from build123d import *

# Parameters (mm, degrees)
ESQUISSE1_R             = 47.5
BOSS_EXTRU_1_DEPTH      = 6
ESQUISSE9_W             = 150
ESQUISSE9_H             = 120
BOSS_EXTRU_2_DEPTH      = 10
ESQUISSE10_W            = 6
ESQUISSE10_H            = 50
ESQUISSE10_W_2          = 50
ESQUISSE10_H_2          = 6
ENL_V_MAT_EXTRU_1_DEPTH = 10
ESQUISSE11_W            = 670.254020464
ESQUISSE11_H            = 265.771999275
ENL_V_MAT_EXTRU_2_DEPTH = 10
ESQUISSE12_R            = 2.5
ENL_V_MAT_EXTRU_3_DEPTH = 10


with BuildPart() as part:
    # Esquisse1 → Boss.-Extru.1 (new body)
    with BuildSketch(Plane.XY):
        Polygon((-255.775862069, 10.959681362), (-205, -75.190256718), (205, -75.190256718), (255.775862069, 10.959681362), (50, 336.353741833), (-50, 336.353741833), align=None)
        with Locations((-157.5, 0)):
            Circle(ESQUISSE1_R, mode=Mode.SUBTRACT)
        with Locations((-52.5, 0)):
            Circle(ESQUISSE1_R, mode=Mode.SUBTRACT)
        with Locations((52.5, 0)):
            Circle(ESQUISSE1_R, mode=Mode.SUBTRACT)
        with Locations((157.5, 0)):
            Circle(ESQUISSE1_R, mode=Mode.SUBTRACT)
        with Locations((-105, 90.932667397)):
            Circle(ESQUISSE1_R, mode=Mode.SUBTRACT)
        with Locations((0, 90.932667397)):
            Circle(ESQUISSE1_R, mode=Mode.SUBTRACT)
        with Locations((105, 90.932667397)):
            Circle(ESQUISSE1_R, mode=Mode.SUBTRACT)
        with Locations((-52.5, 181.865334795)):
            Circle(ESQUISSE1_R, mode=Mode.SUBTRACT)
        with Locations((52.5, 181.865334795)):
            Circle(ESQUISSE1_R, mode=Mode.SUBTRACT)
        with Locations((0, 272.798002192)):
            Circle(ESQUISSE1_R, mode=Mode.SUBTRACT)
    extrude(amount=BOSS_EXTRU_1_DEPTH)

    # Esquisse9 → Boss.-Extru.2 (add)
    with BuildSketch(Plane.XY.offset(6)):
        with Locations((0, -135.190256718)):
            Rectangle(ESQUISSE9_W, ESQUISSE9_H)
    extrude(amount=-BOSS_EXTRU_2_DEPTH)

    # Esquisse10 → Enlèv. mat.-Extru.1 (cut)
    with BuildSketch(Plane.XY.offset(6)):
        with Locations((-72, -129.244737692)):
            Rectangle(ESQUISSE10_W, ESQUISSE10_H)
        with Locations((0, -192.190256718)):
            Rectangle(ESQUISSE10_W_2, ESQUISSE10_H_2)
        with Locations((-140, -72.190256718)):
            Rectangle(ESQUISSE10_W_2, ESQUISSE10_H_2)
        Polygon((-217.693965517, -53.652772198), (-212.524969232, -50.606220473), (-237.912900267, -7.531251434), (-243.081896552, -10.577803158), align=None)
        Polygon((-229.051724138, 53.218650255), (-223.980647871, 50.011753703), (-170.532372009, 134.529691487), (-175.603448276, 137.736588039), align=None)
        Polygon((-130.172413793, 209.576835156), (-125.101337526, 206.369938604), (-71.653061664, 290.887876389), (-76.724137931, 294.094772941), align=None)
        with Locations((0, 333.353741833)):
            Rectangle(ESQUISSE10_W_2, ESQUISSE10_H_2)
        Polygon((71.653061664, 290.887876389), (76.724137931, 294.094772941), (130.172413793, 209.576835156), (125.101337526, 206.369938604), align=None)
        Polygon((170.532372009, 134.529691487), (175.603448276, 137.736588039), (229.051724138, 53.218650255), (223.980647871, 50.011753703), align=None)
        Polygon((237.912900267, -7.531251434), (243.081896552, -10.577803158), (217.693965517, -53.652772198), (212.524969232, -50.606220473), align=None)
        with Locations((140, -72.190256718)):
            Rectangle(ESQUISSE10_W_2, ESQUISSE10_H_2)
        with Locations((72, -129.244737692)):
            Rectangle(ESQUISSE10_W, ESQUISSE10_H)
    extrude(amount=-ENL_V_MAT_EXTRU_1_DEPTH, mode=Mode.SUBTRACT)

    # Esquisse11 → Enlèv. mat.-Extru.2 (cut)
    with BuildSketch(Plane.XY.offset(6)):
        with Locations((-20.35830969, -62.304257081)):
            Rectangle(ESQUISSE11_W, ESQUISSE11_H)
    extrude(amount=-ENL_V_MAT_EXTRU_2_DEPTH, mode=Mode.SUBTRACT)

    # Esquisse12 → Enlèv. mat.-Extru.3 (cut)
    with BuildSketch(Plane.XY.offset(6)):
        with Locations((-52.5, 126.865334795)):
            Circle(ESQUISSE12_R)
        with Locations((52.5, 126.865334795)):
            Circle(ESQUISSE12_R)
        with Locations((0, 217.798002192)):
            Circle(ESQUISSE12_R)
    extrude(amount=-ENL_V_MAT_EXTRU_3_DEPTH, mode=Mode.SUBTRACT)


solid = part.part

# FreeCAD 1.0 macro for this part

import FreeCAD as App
import Part
import Sketcher

V = App.Vector

doc = App.newDocument("Part")
body = doc.addObject("PartDesign::Body", "Body")

sketch1 = doc.addObject("Sketcher::SketchObject", "Sketch")
body.addObject(sketch1)
sketch1.AttachmentSupport = (doc.XY_Plane, [""])
sketch1.MapMode = "FlatFace"
sketch1.addGeometry(Part.LineSegment(V(-256, 11, 0), V(-205, -75, 0)), False)
sketch1.addGeometry(Part.LineSegment(V(-205, -75, 0), V(205, -75, 0)), False)
sketch1.addGeometry(Part.LineSegment(V(205, -75, 0), V(256, 11, 0)), False)
sketch1.addGeometry(Part.LineSegment(V(256, 11, 0), V(50, 336, 0)), False)
sketch1.addGeometry(Part.LineSegment(V(50, 336, 0), V(-50, 336, 0)), False)
sketch1.addGeometry(Part.LineSegment(V(-50, 336, 0), V(-256, 11, 0)), False)
sketch1.addGeometry(Part.Circle(V(-158, 0, 0), V(0, 0, 1), 48), False)
sketch1.addGeometry(Part.Circle(V(-52, 0, 0), V(0, 0, 1), 48), False)
sketch1.addGeometry(Part.Circle(V(-105, 91, 0), V(0, 0, 1), 48), False)
sketch1.addGeometry(Part.Circle(V(52, 0, 0), V(0, 0, 1), 48), False)
sketch1.addGeometry(Part.Circle(V(158, 0, 0), V(0, 0, 1), 48), False)
sketch1.addGeometry(Part.Circle(V(0, 91, 0), V(0, 0, 1), 48), False)
sketch1.addGeometry(Part.Circle(V(105, 91, 0), V(0, 0, 1), 48), False)
sketch1.addGeometry(Part.Circle(V(-52, 182, 0), V(0, 0, 1), 48), False)
sketch1.addGeometry(Part.Circle(V(52, 182, 0), V(0, 0, 1), 48), False)
sketch1.addGeometry(Part.Circle(V(0, 273, 0), V(0, 0, 1), 48), False)
sketch1.addConstraint(Sketcher.Constraint("Coincident", 0, 2, 1, 1))
sketch1.addConstraint(Sketcher.Constraint("Coincident", 1, 2, 2, 1))
sketch1.addConstraint(Sketcher.Constraint("Coincident", 2, 2, 3, 1))
sketch1.addConstraint(Sketcher.Constraint("Coincident", 3, 2, 4, 1))
sketch1.addConstraint(Sketcher.Constraint("Coincident", 4, 2, 5, 1))
sketch1.addConstraint(Sketcher.Constraint("Coincident", 5, 2, 0, 1))
sketch1.addConstraint(Sketcher.Constraint("Horizontal", 1))
sketch1.addConstraint(Sketcher.Constraint("Horizontal", 4))
sketch1.addConstraint(Sketcher.Constraint("Equal", 6, 7))
sketch1.addConstraint(Sketcher.Constraint("Equal", 7, 8))
sketch1.addConstraint(Sketcher.Constraint("Equal", 8, 9))
sketch1.addConstraint(Sketcher.Constraint("Equal", 9, 10))
sketch1.addConstraint(Sketcher.Constraint("Equal", 10, 11))
sketch1.addConstraint(Sketcher.Constraint("Equal", 11, 12))
sketch1.addConstraint(Sketcher.Constraint("Equal", 12, 13))
sketch1.addConstraint(Sketcher.Constraint("Equal", 13, 14))
sketch1.addConstraint(Sketcher.Constraint("Equal", 14, 15))
sketch1.addConstraint(Sketcher.Constraint("Symmetric", 7, 3, 9, 3, -1, 1))
sketch1.addConstraint(Sketcher.Constraint("Symmetric", 6, 3, 10, 3, -1, 1))
sketch1.addConstraint(Sketcher.Constraint("Symmetric", 8, 3, 12, 3, -2))
sketch1.addConstraint(Sketcher.Constraint("Symmetric", 13, 3, 14, 3, -2))
sketch1.addConstraint(Sketcher.Constraint("Symmetric", 2, 2, 5, 2, -2))
sketch1.addConstraint(Sketcher.Constraint("PointOnObject", 6, 3, -1))
sketch1.addConstraint(Sketcher.Constraint("PointOnObject", 7, 3, -1))
sketch1.addConstraint(Sketcher.Constraint("PointOnObject", 11, 3, -2))
sketch1.addConstraint(Sketcher.Constraint("PointOnObject", 15, 3, -2))
sketch1.addConstraint(Sketcher.Constraint("Horizontal", 8, 3, 11, 3))
sketch1.addConstraint(Sketcher.Constraint("Vertical", 7, 3, 13, 3))
sketch1.addConstraint(Sketcher.Constraint("Equal", 0, 2))
sketch1.addConstraint(Sketcher.Constraint("Equal", 3, 5))
sketch1.addConstraint(Sketcher.Constraint("Diameter", 6, 95.0))
sketch1.addConstraint(Sketcher.Constraint("DistanceX", 1, 1, 1, 2, 410.0))
sketch1.addConstraint(Sketcher.Constraint("DistanceX", 4, 2, 4, 1, 100.0))
sketch1.addConstraint(Sketcher.Constraint("Distance", 0, 100.0))
sketch1.addConstraint(Sketcher.Constraint("Distance", 3, 385.0))
sketch1.addConstraint(Sketcher.Constraint("DistanceX", 8, 3, -1, 1, 105.0))
sketch1.addConstraint(Sketcher.Constraint("DistanceX", 6, 3, 7, 3, 105.0))
sketch1.addConstraint(Sketcher.Constraint("DistanceX", 7, 3, 9, 3, 105.0))
sketch1.addConstraint(Sketcher.Constraint("DistanceY", -1, 1, 2, 2, 10.959681))
sketch1.addConstraint(Sketcher.Constraint("DistanceY", -1, 1, 3, 2, 336.353742))
sketch1.addConstraint(Sketcher.Constraint("DistanceY", 15, 3, 3, 2, 63.55574))
sketch1.addConstraint(Sketcher.Constraint("DistanceY", -1, 1, 8, 3, 90.932667))
sketch1.addConstraint(Sketcher.Constraint("DistanceY", -1, 1, 13, 3, 181.865335))
pad1 = doc.addObject("PartDesign::Pad", "Pad")
body.addObject(pad1)
pad1.Profile = sketch1
pad1.Length = 6

sketch2 = doc.addObject("Sketcher::SketchObject", "Sketch001")
body.addObject(sketch2)
sketch2.AttachmentSupport = (doc.XY_Plane, [""])
sketch2.MapMode = "FlatFace"
sketch2.AttachmentOffset = App.Placement(V(0, 0, 6), App.Rotation())
sketch2.addGeometry(Part.LineSegment(V(-75, -75, 0), V(-75, -195, 0)), False)
sketch2.addGeometry(Part.LineSegment(V(-75, -195, 0), V(75, -195, 0)), False)
sketch2.addGeometry(Part.LineSegment(V(75, -195, 0), V(75, -75, 0)), False)
sketch2.addGeometry(Part.LineSegment(V(75, -75, 0), V(-75, -75, 0)), False)
sketch2.addConstraint(Sketcher.Constraint("Coincident", 0, 2, 1, 1))
sketch2.addConstraint(Sketcher.Constraint("Coincident", 1, 2, 2, 1))
sketch2.addConstraint(Sketcher.Constraint("Coincident", 2, 2, 3, 1))
sketch2.addConstraint(Sketcher.Constraint("Coincident", 3, 2, 0, 1))
sketch2.addConstraint(Sketcher.Constraint("Vertical", 0))
sketch2.addConstraint(Sketcher.Constraint("Horizontal", 1))
sketch2.addConstraint(Sketcher.Constraint("Vertical", 2))
sketch2.addConstraint(Sketcher.Constraint("Horizontal", 3))
sketch2.addConstraint(Sketcher.Constraint("DistanceX", 1, 1, 1, 2, 150.0))
sketch2.addConstraint(Sketcher.Constraint("DistanceY", 0, 2, 0, 1, 120.0))
sketch2.addConstraint(Sketcher.Constraint("DistanceX", 0, 2, -1, 1, 75.0))
sketch2.addConstraint(Sketcher.Constraint("DistanceY", 0, 2, -1, 1, 195.190257))
pad2 = doc.addObject("PartDesign::Pad", "Pad001")
body.addObject(pad2)
pad2.Profile = sketch2
pad2.Length = 10
pad2.Reversed = True

sketch3 = doc.addObject("Sketcher::SketchObject", "Sketch002")
body.addObject(sketch3)
sketch3.AttachmentSupport = (doc.XY_Plane, [""])
sketch3.MapMode = "FlatFace"
sketch3.AttachmentOffset = App.Placement(V(0, 0, 6), App.Rotation())
sketch3.addGeometry(Part.LineSegment(V(-75, -104, 0), V(-75, -154, 0)), False)
sketch3.addGeometry(Part.LineSegment(V(-75, -154, 0), V(-69, -154, 0)), False)
sketch3.addGeometry(Part.LineSegment(V(-69, -154, 0), V(-69, -104, 0)), False)
sketch3.addGeometry(Part.LineSegment(V(-69, -104, 0), V(-75, -104, 0)), False)
sketch3.addGeometry(Part.LineSegment(V(-25, -189, 0), V(-25, -195, 0)), False)
sketch3.addGeometry(Part.LineSegment(V(-25, -195, 0), V(25, -195, 0)), False)
sketch3.addGeometry(Part.LineSegment(V(25, -195, 0), V(25, -189, 0)), False)
sketch3.addGeometry(Part.LineSegment(V(25, -189, 0), V(-25, -189, 0)), False)
sketch3.addGeometry(Part.LineSegment(V(-165, -69, 0), V(-165, -75, 0)), False)
sketch3.addGeometry(Part.LineSegment(V(-165, -75, 0), V(-115, -75, 0)), False)
sketch3.addGeometry(Part.LineSegment(V(-115, -75, 0), V(-115, -69, 0)), False)
sketch3.addGeometry(Part.LineSegment(V(-115, -69, 0), V(-165, -69, 0)), False)
sketch3.addGeometry(Part.LineSegment(V(-218, -54, 0), V(-213, -51, 0)), False)
sketch3.addGeometry(Part.LineSegment(V(-213, -51, 0), V(-238, -8, 0)), False)
sketch3.addGeometry(Part.LineSegment(V(-238, -8, 0), V(-243, -11, 0)), False)
sketch3.addGeometry(Part.LineSegment(V(-243, -11, 0), V(-218, -54, 0)), False)
sketch3.addGeometry(Part.LineSegment(V(-229, 53, 0), V(-224, 50, 0)), False)
sketch3.addGeometry(Part.LineSegment(V(-224, 50, 0), V(-171, 135, 0)), False)
sketch3.addGeometry(Part.LineSegment(V(-171, 135, 0), V(-176, 138, 0)), False)
sketch3.addGeometry(Part.LineSegment(V(-176, 138, 0), V(-229, 53, 0)), False)
sketch3.addGeometry(Part.LineSegment(V(-130, 210, 0), V(-125, 206, 0)), False)
sketch3.addGeometry(Part.LineSegment(V(-125, 206, 0), V(-72, 291, 0)), False)
sketch3.addGeometry(Part.LineSegment(V(-72, 291, 0), V(-77, 294, 0)), False)
sketch3.addGeometry(Part.LineSegment(V(-77, 294, 0), V(-130, 210, 0)), False)
sketch3.addGeometry(Part.LineSegment(V(-25, 336, 0), V(-25, 330, 0)), False)
sketch3.addGeometry(Part.LineSegment(V(-25, 330, 0), V(25, 330, 0)), False)
sketch3.addGeometry(Part.LineSegment(V(25, 330, 0), V(25, 336, 0)), False)
sketch3.addGeometry(Part.LineSegment(V(25, 336, 0), V(-25, 336, 0)), False)
sketch3.addGeometry(Part.LineSegment(V(77, 294, 0), V(72, 291, 0)), False)
sketch3.addGeometry(Part.LineSegment(V(72, 291, 0), V(125, 206, 0)), False)
sketch3.addGeometry(Part.LineSegment(V(125, 206, 0), V(130, 210, 0)), False)
sketch3.addGeometry(Part.LineSegment(V(130, 210, 0), V(77, 294, 0)), False)
sketch3.addGeometry(Part.LineSegment(V(176, 138, 0), V(171, 135, 0)), False)
sketch3.addGeometry(Part.LineSegment(V(171, 135, 0), V(224, 50, 0)), False)
sketch3.addGeometry(Part.LineSegment(V(224, 50, 0), V(229, 53, 0)), False)
sketch3.addGeometry(Part.LineSegment(V(229, 53, 0), V(176, 138, 0)), False)
sketch3.addGeometry(Part.LineSegment(V(243, -11, 0), V(238, -8, 0)), False)
sketch3.addGeometry(Part.LineSegment(V(238, -8, 0), V(213, -51, 0)), False)
sketch3.addGeometry(Part.LineSegment(V(213, -51, 0), V(218, -54, 0)), False)
sketch3.addGeometry(Part.LineSegment(V(218, -54, 0), V(243, -11, 0)), False)
sketch3.addGeometry(Part.LineSegment(V(115, -69, 0), V(115, -75, 0)), False)
sketch3.addGeometry(Part.LineSegment(V(115, -75, 0), V(165, -75, 0)), False)
sketch3.addGeometry(Part.LineSegment(V(165, -75, 0), V(165, -69, 0)), False)
sketch3.addGeometry(Part.LineSegment(V(165, -69, 0), V(115, -69, 0)), False)
sketch3.addGeometry(Part.LineSegment(V(69, -104, 0), V(69, -154, 0)), False)
sketch3.addGeometry(Part.LineSegment(V(69, -154, 0), V(75, -154, 0)), False)
sketch3.addGeometry(Part.LineSegment(V(75, -154, 0), V(75, -104, 0)), False)
sketch3.addGeometry(Part.LineSegment(V(75, -104, 0), V(69, -104, 0)), False)
sketch3.addConstraint(Sketcher.Constraint("Coincident", 0, 2, 1, 1))
sketch3.addConstraint(Sketcher.Constraint("Coincident", 1, 2, 2, 1))
sketch3.addConstraint(Sketcher.Constraint("Coincident", 2, 2, 3, 1))
sketch3.addConstraint(Sketcher.Constraint("Coincident", 3, 2, 0, 1))
sketch3.addConstraint(Sketcher.Constraint("Coincident", 4, 2, 5, 1))
sketch3.addConstraint(Sketcher.Constraint("Coincident", 5, 2, 6, 1))
sketch3.addConstraint(Sketcher.Constraint("Coincident", 6, 2, 7, 1))
sketch3.addConstraint(Sketcher.Constraint("Coincident", 7, 2, 4, 1))
sketch3.addConstraint(Sketcher.Constraint("Coincident", 8, 2, 9, 1))
sketch3.addConstraint(Sketcher.Constraint("Coincident", 9, 2, 10, 1))
sketch3.addConstraint(Sketcher.Constraint("Coincident", 10, 2, 11, 1))
sketch3.addConstraint(Sketcher.Constraint("Coincident", 11, 2, 8, 1))
sketch3.addConstraint(Sketcher.Constraint("Coincident", 12, 2, 13, 1))
sketch3.addConstraint(Sketcher.Constraint("Coincident", 13, 2, 14, 1))
sketch3.addConstraint(Sketcher.Constraint("Coincident", 14, 2, 15, 1))
sketch3.addConstraint(Sketcher.Constraint("Coincident", 15, 2, 12, 1))
sketch3.addConstraint(Sketcher.Constraint("Coincident", 16, 2, 17, 1))
sketch3.addConstraint(Sketcher.Constraint("Coincident", 17, 2, 18, 1))
sketch3.addConstraint(Sketcher.Constraint("Coincident", 18, 2, 19, 1))
sketch3.addConstraint(Sketcher.Constraint("Coincident", 19, 2, 16, 1))
sketch3.addConstraint(Sketcher.Constraint("Coincident", 20, 2, 21, 1))
sketch3.addConstraint(Sketcher.Constraint("Coincident", 21, 2, 22, 1))
sketch3.addConstraint(Sketcher.Constraint("Coincident", 22, 2, 23, 1))
sketch3.addConstraint(Sketcher.Constraint("Coincident", 23, 2, 20, 1))
sketch3.addConstraint(Sketcher.Constraint("Coincident", 24, 2, 25, 1))
sketch3.addConstraint(Sketcher.Constraint("Coincident", 25, 2, 26, 1))
sketch3.addConstraint(Sketcher.Constraint("Coincident", 26, 2, 27, 1))
sketch3.addConstraint(Sketcher.Constraint("Coincident", 27, 2, 24, 1))
sketch3.addConstraint(Sketcher.Constraint("Coincident", 28, 2, 29, 1))
sketch3.addConstraint(Sketcher.Constraint("Coincident", 29, 2, 30, 1))
sketch3.addConstraint(Sketcher.Constraint("Coincident", 30, 2, 31, 1))
sketch3.addConstraint(Sketcher.Constraint("Coincident", 31, 2, 28, 1))
sketch3.addConstraint(Sketcher.Constraint("Coincident", 32, 2, 33, 1))
sketch3.addConstraint(Sketcher.Constraint("Coincident", 33, 2, 34, 1))
sketch3.addConstraint(Sketcher.Constraint("Coincident", 34, 2, 35, 1))
sketch3.addConstraint(Sketcher.Constraint("Coincident", 35, 2, 32, 1))
sketch3.addConstraint(Sketcher.Constraint("Coincident", 36, 2, 37, 1))
sketch3.addConstraint(Sketcher.Constraint("Coincident", 37, 2, 38, 1))
sketch3.addConstraint(Sketcher.Constraint("Coincident", 38, 2, 39, 1))
sketch3.addConstraint(Sketcher.Constraint("Coincident", 39, 2, 36, 1))
sketch3.addConstraint(Sketcher.Constraint("Coincident", 40, 2, 41, 1))
sketch3.addConstraint(Sketcher.Constraint("Coincident", 41, 2, 42, 1))
sketch3.addConstraint(Sketcher.Constraint("Coincident", 42, 2, 43, 1))
sketch3.addConstraint(Sketcher.Constraint("Coincident", 43, 2, 40, 1))
sketch3.addConstraint(Sketcher.Constraint("Coincident", 44, 2, 45, 1))
sketch3.addConstraint(Sketcher.Constraint("Coincident", 45, 2, 46, 1))
sketch3.addConstraint(Sketcher.Constraint("Coincident", 46, 2, 47, 1))
sketch3.addConstraint(Sketcher.Constraint("Coincident", 47, 2, 44, 1))
sketch3.addConstraint(Sketcher.Constraint("Vertical", 0))
sketch3.addConstraint(Sketcher.Constraint("Horizontal", 1))
sketch3.addConstraint(Sketcher.Constraint("Vertical", 2))
sketch3.addConstraint(Sketcher.Constraint("Horizontal", 3))
sketch3.addConstraint(Sketcher.Constraint("Vertical", 4))
sketch3.addConstraint(Sketcher.Constraint("Horizontal", 5))
sketch3.addConstraint(Sketcher.Constraint("Vertical", 6))
sketch3.addConstraint(Sketcher.Constraint("Horizontal", 7))
sketch3.addConstraint(Sketcher.Constraint("Vertical", 8))
sketch3.addConstraint(Sketcher.Constraint("Horizontal", 9))
sketch3.addConstraint(Sketcher.Constraint("Vertical", 10))
sketch3.addConstraint(Sketcher.Constraint("Horizontal", 11))
sketch3.addConstraint(Sketcher.Constraint("Vertical", 24))
sketch3.addConstraint(Sketcher.Constraint("Horizontal", 25))
sketch3.addConstraint(Sketcher.Constraint("Vertical", 26))
sketch3.addConstraint(Sketcher.Constraint("Horizontal", 27))
sketch3.addConstraint(Sketcher.Constraint("Vertical", 40))
sketch3.addConstraint(Sketcher.Constraint("Horizontal", 41))
sketch3.addConstraint(Sketcher.Constraint("Vertical", 42))
sketch3.addConstraint(Sketcher.Constraint("Horizontal", 43))
sketch3.addConstraint(Sketcher.Constraint("Vertical", 44))
sketch3.addConstraint(Sketcher.Constraint("Horizontal", 45))
sketch3.addConstraint(Sketcher.Constraint("Vertical", 46))
sketch3.addConstraint(Sketcher.Constraint("Horizontal", 47))
sketch3.addConstraint(Sketcher.Constraint("Symmetric", 21, 2, 28, 2, -2))
sketch3.addConstraint(Sketcher.Constraint("Symmetric", 20, 2, 29, 2, -2))
sketch3.addConstraint(Sketcher.Constraint("Symmetric", 23, 2, 30, 2, -2))
sketch3.addConstraint(Sketcher.Constraint("Symmetric", 22, 2, 31, 2, -2))
sketch3.addConstraint(Sketcher.Constraint("Symmetric", 17, 2, 32, 2, -2))
sketch3.addConstraint(Sketcher.Constraint("Symmetric", 16, 2, 33, 2, -2))
sketch3.addConstraint(Sketcher.Constraint("Symmetric", 19, 2, 34, 2, -2))
sketch3.addConstraint(Sketcher.Constraint("Symmetric", 18, 2, 35, 2, -2))
sketch3.addConstraint(Sketcher.Constraint("Symmetric", 13, 2, 36, 2, -2))
sketch3.addConstraint(Sketcher.Constraint("Symmetric", 12, 2, 37, 2, -2))
sketch3.addConstraint(Sketcher.Constraint("Symmetric", 15, 2, 38, 2, -2))
sketch3.addConstraint(Sketcher.Constraint("Symmetric", 14, 2, 39, 2, -2))
sketch3.addConstraint(Sketcher.Constraint("Symmetric", 9, 2, 40, 2, -2))
sketch3.addConstraint(Sketcher.Constraint("Symmetric", 11, 2, 42, 2, -2))
sketch3.addConstraint(Sketcher.Constraint("Symmetric", 1, 2, 44, 2, -2))
sketch3.addConstraint(Sketcher.Constraint("Symmetric", 3, 2, 46, 2, -2))
sketch3.addConstraint(Sketcher.Constraint("Perpendicular", 12, 13))
sketch3.addConstraint(Sketcher.Constraint("Perpendicular", 13, 14))
sketch3.addConstraint(Sketcher.Constraint("Perpendicular", 14, 15))
sketch3.addConstraint(Sketcher.Constraint("Perpendicular", 16, 17))
sketch3.addConstraint(Sketcher.Constraint("Perpendicular", 17, 18))
sketch3.addConstraint(Sketcher.Constraint("Perpendicular", 18, 19))
sketch3.addConstraint(Sketcher.Constraint("Perpendicular", 19, 20))
sketch3.addConstraint(Sketcher.Constraint("Perpendicular", 20, 21))
sketch3.addConstraint(Sketcher.Constraint("Perpendicular", 21, 22))
sketch3.addConstraint(Sketcher.Constraint("Perpendicular", 22, 23))
sketch3.addConstraint(Sketcher.Constraint("Vertical", 7, 2, 24, 2))
sketch3.addConstraint(Sketcher.Constraint("Vertical", 6, 2, 25, 2))
sketch3.addConstraint(Sketcher.Constraint("Equal", 7, 9))
sketch3.addConstraint(Sketcher.Constraint("Equal", 43, 0))
sketch3.addConstraint(Sketcher.Constraint("Equal", 47, 4))
sketch3.addConstraint(Sketcher.Constraint("Equal", 6, 8))
sketch3.addConstraint(Sketcher.Constraint("Equal", 10, 24))
sketch3.addConstraint(Sketcher.Constraint("Equal", 14, 16))
sketch3.addConstraint(Sketcher.Constraint("Equal", 18, 20))
sketch3.addConstraint(Sketcher.Constraint("Equal", 19, 21))
sketch3.addConstraint(Sketcher.Constraint("DistanceX", 1, 1, 1, 2, 6.0))
sketch3.addConstraint(Sketcher.Constraint("DistanceX", 5, 1, 5, 2, 50.0))
sketch3.addConstraint(Sketcher.Constraint("Distance", 12, 6.0))
sketch3.addConstraint(Sketcher.Constraint("Distance", 13, 50.0))
sketch3.addConstraint(Sketcher.Constraint("Distance", 17, 100.0))
sketch3.addConstraint(Sketcher.Constraint("DistanceX", 0, 2, -1, 1, 75.0))
sketch3.addConstraint(Sketcher.Constraint("DistanceX", 4, 2, -1, 1, 25.0))
sketch3.addConstraint(Sketcher.Constraint("DistanceX", 8, 2, -1, 1, 165.0))
sketch3.addConstraint(Sketcher.Constraint("DistanceY", 7, 2, 8, 2, 114.0))
sketch3.addConstraint(Sketcher.Constraint("DistanceX", 13, 2, -1, 1, 237.9129))
sketch3.addConstraint(Sketcher.Constraint("DistanceX", 16, 2, 18, 2, 48.3772))
sketch3.addConstraint(Sketcher.Constraint("DistanceY", 13, 2, 19, 2, 60.749902))
sketch3.addConstraint(Sketcher.Constraint("DistanceX", 12, 2, -1, 1, 212.524969))
sketch3.addConstraint(Sketcher.Constraint("DistanceY", 12, 2, -1, 1, 50.60622))
sketch3.addConstraint(Sketcher.Constraint("DistanceX", 18, 2, -1, 1, 175.603448))
sketch3.addConstraint(Sketcher.Constraint("DistanceY", -1, 1, 20, 2, 206.369939))
sketch3.addConstraint(Sketcher.Constraint("DistanceX", 21, 2, -1, 1, 71.653062))
sketch3.addConstraint(Sketcher.Constraint("DistanceY", -1, 1, 24, 2, 330.353742))
sketch3.addConstraint(Sketcher.Constraint("DistanceY", 4, 2, 1, 2, 40.945519))
sketch3.addConstraint(Sketcher.Constraint("DistanceY", 11, 2, 16, 2, 119.20201))
pocket1 = doc.addObject("PartDesign::Pocket", "Pocket")
body.addObject(pocket1)
pocket1.Profile = sketch3
pocket1.Length = 10

sketch4 = doc.addObject("Sketcher::SketchObject", "Sketch003")
body.addObject(sketch4)
sketch4.AttachmentSupport = (doc.XY_Plane, [""])
sketch4.MapMode = "FlatFace"
sketch4.AttachmentOffset = App.Placement(V(0, 0, 6), App.Rotation())
sketch4.addGeometry(Part.LineSegment(V(-355, 71, 0), V(-355, -195, 0)), False)
sketch4.addGeometry(Part.LineSegment(V(-355, -195, 0), V(315, -195, 0)), False)
sketch4.addGeometry(Part.LineSegment(V(315, -195, 0), V(315, 71, 0)), False)
sketch4.addGeometry(Part.LineSegment(V(315, 71, 0), V(-355, 71, 0)), False)
sketch4.addConstraint(Sketcher.Constraint("Coincident", 0, 2, 1, 1))
sketch4.addConstraint(Sketcher.Constraint("Coincident", 1, 2, 2, 1))
sketch4.addConstraint(Sketcher.Constraint("Coincident", 2, 2, 3, 1))
sketch4.addConstraint(Sketcher.Constraint("Coincident", 3, 2, 0, 1))
sketch4.addConstraint(Sketcher.Constraint("Vertical", 0))
sketch4.addConstraint(Sketcher.Constraint("Horizontal", 1))
sketch4.addConstraint(Sketcher.Constraint("Vertical", 2))
sketch4.addConstraint(Sketcher.Constraint("Horizontal", 3))
sketch4.addConstraint(Sketcher.Constraint("DistanceY", 0, 2, 0, 1, 265.771999))
sketch4.addConstraint(Sketcher.Constraint("DistanceX", 1, 1, 1, 2, 670.25402))
sketch4.addConstraint(Sketcher.Constraint("DistanceX", -1, 1, 1, 2, 314.768701))
sketch4.addConstraint(Sketcher.Constraint("DistanceY", 0, 2, -1, 1, 195.190257))
pocket2 = doc.addObject("PartDesign::Pocket", "Pocket001")
body.addObject(pocket2)
pocket2.Profile = sketch4
pocket2.Length = 10

sketch5 = doc.addObject("Sketcher::SketchObject", "Sketch004")
body.addObject(sketch5)
sketch5.AttachmentSupport = (doc.XY_Plane, [""])
sketch5.MapMode = "FlatFace"
sketch5.AttachmentOffset = App.Placement(V(0, 0, 6), App.Rotation())
sketch5.addGeometry(Part.Circle(V(-52.5, 126.9, 0), V(0, 0, 1), 2.5), False)
sketch5.addGeometry(Part.Circle(V(52.5, 126.9, 0), V(0, 0, 1), 2.5), False)
sketch5.addGeometry(Part.Circle(V(0, 217.8, 0), V(0, 0, 1), 2.5), False)
sketch5.addConstraint(Sketcher.Constraint("Equal", 0, 1))
sketch5.addConstraint(Sketcher.Constraint("Equal", 1, 2))
sketch5.addConstraint(Sketcher.Constraint("Symmetric", 0, 3, 1, 3, -2))
sketch5.addConstraint(Sketcher.Constraint("PointOnObject", 2, 3, -2))
sketch5.addConstraint(Sketcher.Constraint("Diameter", 0, 5.0))
sketch5.addConstraint(Sketcher.Constraint("DistanceX", 0, 3, 1, 3, 105.0))
sketch5.addConstraint(Sketcher.Constraint("DistanceY", -1, 1, 0, 3, 126.865335))
sketch5.addConstraint(Sketcher.Constraint("DistanceY", -1, 1, 2, 3, 217.798002))
pocket3 = doc.addObject("PartDesign::Pocket", "Pocket002")
body.addObject(pocket3)
pocket3.Profile = sketch5
pocket3.Length = 10

doc.recompute()
